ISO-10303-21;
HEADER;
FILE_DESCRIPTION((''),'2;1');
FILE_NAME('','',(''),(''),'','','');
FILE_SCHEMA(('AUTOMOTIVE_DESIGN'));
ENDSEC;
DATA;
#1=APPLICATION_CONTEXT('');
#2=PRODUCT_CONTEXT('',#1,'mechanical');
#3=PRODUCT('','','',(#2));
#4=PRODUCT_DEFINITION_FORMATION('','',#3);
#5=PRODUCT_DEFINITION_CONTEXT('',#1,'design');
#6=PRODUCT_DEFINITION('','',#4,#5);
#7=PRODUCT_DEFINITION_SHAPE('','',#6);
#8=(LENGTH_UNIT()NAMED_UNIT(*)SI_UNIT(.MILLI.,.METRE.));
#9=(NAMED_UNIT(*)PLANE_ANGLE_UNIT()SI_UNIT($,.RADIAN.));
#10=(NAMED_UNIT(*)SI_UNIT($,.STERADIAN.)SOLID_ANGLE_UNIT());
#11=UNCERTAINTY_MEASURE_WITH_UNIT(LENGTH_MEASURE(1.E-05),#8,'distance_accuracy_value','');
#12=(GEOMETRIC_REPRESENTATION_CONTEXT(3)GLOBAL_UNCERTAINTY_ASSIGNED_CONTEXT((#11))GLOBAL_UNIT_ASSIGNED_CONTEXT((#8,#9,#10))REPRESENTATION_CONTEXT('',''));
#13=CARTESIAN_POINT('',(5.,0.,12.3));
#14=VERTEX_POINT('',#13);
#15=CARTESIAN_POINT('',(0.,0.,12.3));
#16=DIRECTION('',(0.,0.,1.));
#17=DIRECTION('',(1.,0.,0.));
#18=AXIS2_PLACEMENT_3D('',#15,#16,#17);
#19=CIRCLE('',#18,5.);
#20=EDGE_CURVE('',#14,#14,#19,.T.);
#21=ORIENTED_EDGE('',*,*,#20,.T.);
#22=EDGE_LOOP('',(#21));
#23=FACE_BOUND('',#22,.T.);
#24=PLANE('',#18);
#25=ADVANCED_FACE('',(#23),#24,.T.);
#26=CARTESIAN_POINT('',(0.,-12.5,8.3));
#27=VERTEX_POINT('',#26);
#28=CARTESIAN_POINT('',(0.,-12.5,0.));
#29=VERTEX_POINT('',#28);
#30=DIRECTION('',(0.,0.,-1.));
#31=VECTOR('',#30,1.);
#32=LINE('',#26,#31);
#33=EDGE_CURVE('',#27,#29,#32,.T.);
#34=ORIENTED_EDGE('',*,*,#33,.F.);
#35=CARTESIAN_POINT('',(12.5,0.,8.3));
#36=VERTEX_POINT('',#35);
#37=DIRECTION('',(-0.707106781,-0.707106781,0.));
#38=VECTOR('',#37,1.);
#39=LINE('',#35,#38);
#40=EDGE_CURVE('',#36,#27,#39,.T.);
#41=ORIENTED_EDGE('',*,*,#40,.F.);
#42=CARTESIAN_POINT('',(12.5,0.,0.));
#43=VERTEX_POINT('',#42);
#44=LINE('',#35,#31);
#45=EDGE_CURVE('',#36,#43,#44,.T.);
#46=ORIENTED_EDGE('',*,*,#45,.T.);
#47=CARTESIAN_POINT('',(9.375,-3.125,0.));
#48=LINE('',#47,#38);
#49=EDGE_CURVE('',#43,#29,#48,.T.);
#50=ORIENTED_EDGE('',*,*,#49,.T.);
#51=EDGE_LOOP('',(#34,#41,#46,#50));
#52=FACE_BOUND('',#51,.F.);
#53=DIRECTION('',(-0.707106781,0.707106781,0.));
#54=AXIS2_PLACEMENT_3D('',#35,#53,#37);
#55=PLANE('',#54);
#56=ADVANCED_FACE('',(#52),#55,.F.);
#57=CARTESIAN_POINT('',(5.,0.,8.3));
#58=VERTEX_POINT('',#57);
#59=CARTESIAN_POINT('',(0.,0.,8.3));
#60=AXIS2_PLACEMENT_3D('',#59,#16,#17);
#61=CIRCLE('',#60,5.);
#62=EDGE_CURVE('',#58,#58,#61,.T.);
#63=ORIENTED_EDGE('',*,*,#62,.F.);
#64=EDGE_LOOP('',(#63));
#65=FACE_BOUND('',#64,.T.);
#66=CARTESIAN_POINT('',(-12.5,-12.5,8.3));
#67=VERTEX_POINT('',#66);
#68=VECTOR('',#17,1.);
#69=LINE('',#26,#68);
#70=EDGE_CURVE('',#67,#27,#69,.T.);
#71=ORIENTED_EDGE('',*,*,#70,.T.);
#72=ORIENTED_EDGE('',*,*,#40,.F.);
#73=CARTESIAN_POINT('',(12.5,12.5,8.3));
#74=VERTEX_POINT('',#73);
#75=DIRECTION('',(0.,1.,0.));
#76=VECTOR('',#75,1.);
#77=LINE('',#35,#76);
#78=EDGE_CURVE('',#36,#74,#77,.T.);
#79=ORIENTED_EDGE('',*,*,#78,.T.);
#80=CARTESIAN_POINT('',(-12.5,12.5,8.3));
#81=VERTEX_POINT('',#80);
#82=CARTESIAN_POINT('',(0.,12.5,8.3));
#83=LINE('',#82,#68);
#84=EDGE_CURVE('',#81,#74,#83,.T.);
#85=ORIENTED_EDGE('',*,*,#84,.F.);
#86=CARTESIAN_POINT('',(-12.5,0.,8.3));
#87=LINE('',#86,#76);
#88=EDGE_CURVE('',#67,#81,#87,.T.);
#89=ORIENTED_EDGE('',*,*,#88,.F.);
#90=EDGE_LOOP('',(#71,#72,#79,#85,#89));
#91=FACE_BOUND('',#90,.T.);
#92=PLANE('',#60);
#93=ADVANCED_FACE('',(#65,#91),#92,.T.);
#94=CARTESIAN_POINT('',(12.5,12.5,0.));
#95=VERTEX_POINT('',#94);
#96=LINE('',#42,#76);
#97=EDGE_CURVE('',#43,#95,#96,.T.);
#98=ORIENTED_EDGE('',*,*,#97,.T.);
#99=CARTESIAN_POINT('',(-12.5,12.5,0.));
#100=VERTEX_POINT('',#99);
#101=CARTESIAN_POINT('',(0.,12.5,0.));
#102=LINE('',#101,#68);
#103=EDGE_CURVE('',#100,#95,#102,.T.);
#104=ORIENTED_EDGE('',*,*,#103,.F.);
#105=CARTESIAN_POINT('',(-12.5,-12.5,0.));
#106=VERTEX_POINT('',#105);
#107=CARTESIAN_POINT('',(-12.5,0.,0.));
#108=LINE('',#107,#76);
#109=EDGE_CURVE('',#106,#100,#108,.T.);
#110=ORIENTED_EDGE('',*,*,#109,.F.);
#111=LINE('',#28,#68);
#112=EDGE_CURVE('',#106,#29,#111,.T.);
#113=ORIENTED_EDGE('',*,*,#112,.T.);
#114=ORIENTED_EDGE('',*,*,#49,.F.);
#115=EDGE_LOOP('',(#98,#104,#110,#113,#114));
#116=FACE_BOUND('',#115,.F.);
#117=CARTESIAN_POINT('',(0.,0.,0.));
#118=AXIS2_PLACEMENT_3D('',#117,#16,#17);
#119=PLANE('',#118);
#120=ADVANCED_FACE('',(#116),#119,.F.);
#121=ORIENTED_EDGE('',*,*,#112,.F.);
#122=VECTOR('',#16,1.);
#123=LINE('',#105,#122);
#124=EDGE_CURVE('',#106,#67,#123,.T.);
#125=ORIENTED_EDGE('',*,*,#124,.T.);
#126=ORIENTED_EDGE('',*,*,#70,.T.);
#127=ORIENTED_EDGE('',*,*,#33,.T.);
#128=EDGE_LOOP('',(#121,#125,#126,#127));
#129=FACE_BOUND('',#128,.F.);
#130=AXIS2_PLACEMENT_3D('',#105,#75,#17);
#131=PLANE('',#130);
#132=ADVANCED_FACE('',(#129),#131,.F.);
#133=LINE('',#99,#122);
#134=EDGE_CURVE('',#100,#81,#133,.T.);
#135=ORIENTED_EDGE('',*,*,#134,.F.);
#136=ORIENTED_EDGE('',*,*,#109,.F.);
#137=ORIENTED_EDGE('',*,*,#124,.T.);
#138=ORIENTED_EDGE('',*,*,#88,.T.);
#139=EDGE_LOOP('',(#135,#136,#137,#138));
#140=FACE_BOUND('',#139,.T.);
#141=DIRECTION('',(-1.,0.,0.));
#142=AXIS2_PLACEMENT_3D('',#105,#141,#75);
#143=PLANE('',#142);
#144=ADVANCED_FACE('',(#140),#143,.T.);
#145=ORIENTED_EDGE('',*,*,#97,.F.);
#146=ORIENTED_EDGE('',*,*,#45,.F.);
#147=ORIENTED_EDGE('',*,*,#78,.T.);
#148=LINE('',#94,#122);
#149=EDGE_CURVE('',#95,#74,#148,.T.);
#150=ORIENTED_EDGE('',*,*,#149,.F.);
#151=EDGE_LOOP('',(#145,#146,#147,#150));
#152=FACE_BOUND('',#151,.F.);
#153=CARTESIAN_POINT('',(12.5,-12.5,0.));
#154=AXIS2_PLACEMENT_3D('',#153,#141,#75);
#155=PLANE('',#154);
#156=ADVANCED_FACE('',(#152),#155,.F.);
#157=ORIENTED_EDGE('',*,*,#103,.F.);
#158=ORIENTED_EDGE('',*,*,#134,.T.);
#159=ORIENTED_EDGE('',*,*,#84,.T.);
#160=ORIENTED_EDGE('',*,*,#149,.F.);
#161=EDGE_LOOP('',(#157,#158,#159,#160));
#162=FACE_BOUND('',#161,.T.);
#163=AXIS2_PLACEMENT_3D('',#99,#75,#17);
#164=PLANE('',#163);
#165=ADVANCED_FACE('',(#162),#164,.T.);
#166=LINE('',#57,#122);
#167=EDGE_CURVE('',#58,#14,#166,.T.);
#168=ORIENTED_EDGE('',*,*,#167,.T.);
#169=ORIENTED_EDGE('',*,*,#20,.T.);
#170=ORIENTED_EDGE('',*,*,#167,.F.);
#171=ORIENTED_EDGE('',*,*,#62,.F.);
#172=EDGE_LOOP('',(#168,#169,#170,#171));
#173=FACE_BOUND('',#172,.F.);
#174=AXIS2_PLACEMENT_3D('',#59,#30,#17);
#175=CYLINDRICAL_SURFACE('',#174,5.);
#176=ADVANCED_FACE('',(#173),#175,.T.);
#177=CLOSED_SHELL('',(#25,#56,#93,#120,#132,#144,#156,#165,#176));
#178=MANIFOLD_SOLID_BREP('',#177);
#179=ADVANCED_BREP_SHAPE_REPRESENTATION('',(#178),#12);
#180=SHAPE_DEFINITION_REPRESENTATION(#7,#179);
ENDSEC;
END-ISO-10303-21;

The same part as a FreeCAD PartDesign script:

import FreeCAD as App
import Part
import Sketcher

V = App.Vector


def add_polygon(sketch, points):
    """Adds a closed chain of lines whose ends are joined by coincident constraints."""
    first, n = sketch.GeometryCount, len(points)
    for a, b in zip(points, points[1:] + points[:1]):
        sketch.addGeometry(Part.LineSegment(App.Vector(*a, 0), App.Vector(*b, 0)), False)
    for i in range(n):
        sketch.addConstraint(Sketcher.Constraint("Coincident", first + i, 2, first + (i + 1) % n, 1))

doc = App.newDocument("Part")
body = doc.addObject("PartDesign::Body", "Body")

# Sketch on XY plane
sketch1 = doc.addObject("Sketcher::SketchObject", "Sketch")
body.addObject(sketch1)
sketch1.AttachmentSupport = (doc.XY_Plane, [""])
sketch1.MapMode = "FlatFace"
add_polygon(sketch1, [(-12.5, 12.5), (-12.5, -12.5), (12.5, -12.5), (12.5, 12.5)])  # lines 0-3
sketch1.addConstraint([
    Sketcher.Constraint("Vertical", 0),
    Sketcher.Constraint("Horizontal", 1),
    Sketcher.Constraint("Vertical", 2),
    Sketcher.Constraint("Horizontal", 3),
    Sketcher.Constraint("Symmetric", 0, 2, 2, 2, -1, 1),
    Sketcher.Constraint("Equal", 3, 0),
    Sketcher.Constraint("DistanceX", 1, 1, 1, 2, 25.0),
])
pad1 = doc.addObject("PartDesign::Pad", "Pad")
body.addObject(pad1)
pad1.Profile = sketch1
pad1.Length = 8.3

# Sketch on XY plane
sketch2 = doc.addObject("Sketcher::SketchObject", "Sketch001")
body.addObject(sketch2)
sketch2.AttachmentSupport = (doc.XY_Plane, [""])
sketch2.MapMode = "FlatFace"
sketch2.AttachmentOffset = App.Placement(V(0, 0, 8.3), App.Rotation())
sketch2.addGeometry(Part.Circle(V(0, 0, 0), V(0, 0, 1), 5), False)
sketch2.addConstraint([
    Sketcher.Constraint("Coincident", 0, 3, -1, 1),
    Sketcher.Constraint("Diameter", 0, 10.0),
])
pad2 = doc.addObject("PartDesign::Pad", "Pad001")
body.addObject(pad2)
pad2.Profile = sketch2
pad2.Length = 4

# Sketch on XY plane
sketch3 = doc.addObject("Sketcher::SketchObject", "Sketch002")
body.addObject(sketch3)
sketch3.AttachmentSupport = (doc.XY_Plane, [""])
sketch3.MapMode = "FlatFace"
sketch3.AttachmentOffset = App.Placement(V(0, 0, 8.3), App.Rotation())
add_polygon(sketch3, [(12.5, -12.5), (12.5, 0), (0, -12.5)])  # lines 0-2
sketch3.addConstraint([
    Sketcher.Constraint("Vertical", 0),
    Sketcher.Constraint("Horizontal", 2),
    Sketcher.Constraint("PointOnObject", 0, 2, -1),
    Sketcher.Constraint("PointOnObject", 1, 2, -2),
    Sketcher.Constraint("Equal", 2, 0),
    Sketcher.Constraint("DistanceX", 2, 1, 2, 2, 12.5),
])
pocket1 = doc.addObject("PartDesign::Pocket", "Pocket")
body.addObject(pocket1)
pocket1.Profile = sketch3
pocket1.Length = 25

doc.recompute()
